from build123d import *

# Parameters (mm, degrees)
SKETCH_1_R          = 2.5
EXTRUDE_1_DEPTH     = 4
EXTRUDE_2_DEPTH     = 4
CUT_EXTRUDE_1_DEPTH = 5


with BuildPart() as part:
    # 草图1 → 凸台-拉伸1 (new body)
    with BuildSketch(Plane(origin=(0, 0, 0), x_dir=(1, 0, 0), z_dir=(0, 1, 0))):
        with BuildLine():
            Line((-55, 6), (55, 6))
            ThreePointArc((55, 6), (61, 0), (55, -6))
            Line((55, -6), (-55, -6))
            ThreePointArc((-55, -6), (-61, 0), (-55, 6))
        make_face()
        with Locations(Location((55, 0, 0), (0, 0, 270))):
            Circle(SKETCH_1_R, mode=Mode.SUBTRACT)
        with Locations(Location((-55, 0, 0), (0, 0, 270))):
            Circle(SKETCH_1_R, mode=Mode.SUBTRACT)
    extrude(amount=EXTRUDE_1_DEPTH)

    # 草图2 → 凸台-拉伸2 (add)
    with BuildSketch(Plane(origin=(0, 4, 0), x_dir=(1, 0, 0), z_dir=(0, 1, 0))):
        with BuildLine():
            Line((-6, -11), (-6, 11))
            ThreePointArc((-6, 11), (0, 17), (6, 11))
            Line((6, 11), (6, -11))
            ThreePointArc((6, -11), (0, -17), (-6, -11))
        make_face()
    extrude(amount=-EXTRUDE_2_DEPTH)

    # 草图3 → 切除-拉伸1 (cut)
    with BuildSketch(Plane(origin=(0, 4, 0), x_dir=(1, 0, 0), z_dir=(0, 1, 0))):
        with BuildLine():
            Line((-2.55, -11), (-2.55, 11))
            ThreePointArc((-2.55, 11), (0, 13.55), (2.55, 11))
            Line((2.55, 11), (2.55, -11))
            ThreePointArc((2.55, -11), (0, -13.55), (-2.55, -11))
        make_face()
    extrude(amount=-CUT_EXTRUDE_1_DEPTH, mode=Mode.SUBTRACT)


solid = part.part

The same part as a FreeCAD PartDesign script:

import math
import FreeCAD as App
import Part
import Sketcher

V = App.Vector

doc = App.newDocument("Part")
params = doc.addObject("Spreadsheet::Sheet", "Params")
for row, (alias, value) in enumerate([
    ("sketch1_diameter", "5 mm"),
    ("sketch1_radius", "6 mm"),
    ("sketch1_width", "110 mm"),
    ("pad1_length", "4 mm"),
    ("sketch2_radius", "6 mm"),
    ("sketch2_height", "22 mm"),
    ("pad2_length", "4 mm"),
    ("sketch3_height", "22 mm"),
    ("sketch3_radius", "2.55 mm"),
    ("pocket1_length", "5 mm"),
], start=1):
    params.set(f"A{row}", alias)
    params.set(f"B{row}", "=" + value)
    params.setAlias(f"B{row}", alias)

body = doc.addObject("PartDesign::Body", "Body")

sketch1 = body.newObject("Sketcher::SketchObject", "Sketch")
sketch1.AttachmentSupport = (doc.getObject("XZ_Plane"), [""])
sketch1.MapMode = "FlatFace"
sketch1.addGeometry(Part.LineSegment(V(55, -6, 0), V(-55, -6, 0)), False)
sketch1.addGeometry(Part.ArcOfCircle(Part.Circle(V(-55, 0, 0), V(0, 0, 1), 6), math.radians(90), math.radians(270)), False)
sketch1.addGeometry(Part.LineSegment(V(-55, 6, 0), V(55, 6, 0)), False)
sketch1.addGeometry(Part.ArcOfCircle(Part.Circle(V(55, 0, 0), V(0, 0, 1), 6), math.radians(-90), math.radians(90)), False)
sketch1.addGeometry(Part.Circle(V(55, 0, 0), V(0, 0, 1), 2.5), False)
sketch1.addGeometry(Part.Circle(V(-55, 0, 0), V(0, 0, 1), 2.5), False)
sketch1.addConstraint(Sketcher.Constraint("Tangent", 0, 2, 1, 2))
sketch1.addConstraint(Sketcher.Constraint("Tangent", 1, 1, 2, 1))
sketch1.addConstraint(Sketcher.Constraint("Tangent", 2, 2, 3, 2))
sketch1.addConstraint(Sketcher.Constraint("Tangent", 3, 1, 0, 1))
sketch1.addConstraint(Sketcher.Constraint("Horizontal", 0))
sketch1.addConstraint(Sketcher.Constraint("Horizontal", 2))
sketch1.addConstraint(Sketcher.Constraint("Coincident", 4, 3, 3, 3))
sketch1.addConstraint(Sketcher.Constraint("Coincident", 5, 3, 1, 3))
sketch1.addConstraint(Sketcher.Constraint("Equal", 4, 5))
sketch1.addConstraint(Sketcher.Constraint("Symmetric", 1, 3, 3, 3, -1, 1))
sketch1.addConstraint(Sketcher.Constraint("Diameter", 4, 5.0))
sketch1.addConstraint(Sketcher.Constraint("Radius", 1, 6.0))
sketch1.addConstraint(Sketcher.Constraint("DistanceX", 0, 2, 0, 1, 110.0))
sketch1.setExpression("Constraints[10]", "Params.sketch1_diameter")
sketch1.setExpression("Constraints[11]", "Params.sketch1_radius")
sketch1.setExpression("Constraints[12]", "Params.sketch1_width")
pad1 = body.newObject("PartDesign::Pad", "Pad")
pad1.Profile = sketch1
pad1.setExpression("Length", "Params.pad1_length")
pad1.Reversed = True

sketch2 = body.newObject("Sketcher::SketchObject", "Sketch001")
sketch2.AttachmentSupport = (doc.getObject("XZ_Plane"), [""])
sketch2.MapMode = "FlatFace"
sketch2.AttachmentOffset = App.Placement(V(0, 0, -4), App.Rotation())
sketch2.addGeometry(Part.LineSegment(V(-6, -11, 0), V(-6, 11, 0)), False)
sketch2.addGeometry(Part.ArcOfCircle(Part.Circle(V(0, 11, 0), V(0, 0, 1), 6), math.radians(0), math.radians(180)), False)
sketch2.addGeometry(Part.LineSegment(V(6, 11, 0), V(6, -11, 0)), False)
sketch2.addGeometry(Part.ArcOfCircle(Part.Circle(V(0, -11, 0), V(0, 0, 1), 6), math.radians(180), math.radians(360)), False)
sketch2.addConstraint(Sketcher.Constraint("Tangent", 0, 2, 1, 2))
sketch2.addConstraint(Sketcher.Constraint("Tangent", 1, 1, 2, 1))
sketch2.addConstraint(Sketcher.Constraint("Tangent", 2, 2, 3, 2))
sketch2.addConstraint(Sketcher.Constraint("Tangent", 3, 1, 0, 1))
sketch2.addConstraint(Sketcher.Constraint("Vertical", 0))
sketch2.addConstraint(Sketcher.Constraint("Vertical", 2))
sketch2.addConstraint(Sketcher.Constraint("Symmetric", 1, 3, 3, 3, -1, 1))
sketch2.addConstraint(Sketcher.Constraint("Radius", 1, 6.0))
sketch2.addConstraint(Sketcher.Constraint("DistanceY", 0, 1, 0, 2, 22.0))
sketch2.setExpression("Constraints[7]", "Params.sketch2_radius")
sketch2.setExpression("Constraints[8]", "Params.sketch2_height")
pad2 = body.newObject("PartDesign::Pad", "Pad001")
pad2.Profile = sketch2
pad2.setExpression("Length", "Params.pad2_length")

sketch3 = body.newObject("Sketcher::SketchObject", "Sketch002")
sketch3.AttachmentSupport = (doc.getObject("XZ_Plane"), [""])
sketch3.MapMode = "FlatFace"
sketch3.AttachmentOffset = App.Placement(V(0, 0, -4), App.Rotation())
sketch3.addGeometry(Part.LineSegment(V(-2.5, -11, 0), V(-2.5, 11, 0)), False)
sketch3.addGeometry(Part.ArcOfCircle(Part.Circle(V(0, 11, 0), V(0, 0, 1), 2.5), math.radians(0), math.radians(180)), False)
sketch3.addGeometry(Part.LineSegment(V(2.5, 11, 0), V(2.5, -11, 0)), False)
sketch3.addGeometry(Part.ArcOfCircle(Part.Circle(V(0, -11, 0), V(0, 0, 1), 2.5), math.radians(180), math.radians(360)), False)
sketch3.addConstraint(Sketcher.Constraint("Tangent", 0, 2, 1, 2))
sketch3.addConstraint(Sketcher.Constraint("Tangent", 1, 1, 2, 1))
sketch3.addConstraint(Sketcher.Constraint("Tangent", 2, 2, 3, 2))
sketch3.addConstraint(Sketcher.Constraint("Tangent", 3, 1, 0, 1))
sketch3.addConstraint(Sketcher.Constraint("Vertical", 0))
sketch3.addConstraint(Sketcher.Constraint("Vertical", 2))
sketch3.addConstraint(Sketcher.Constraint("Symmetric", 1, 3, 3, 3, -1, 1))
sketch3.addConstraint(Sketcher.Constraint("DistanceY", 0, 1, 0, 2, 22.0))
sketch3.addConstraint(Sketcher.Constraint("Radius", 1, 2.55))
sketch3.setExpression("Constraints[7]", "Params.sketch3_height")
sketch3.setExpression("Constraints[8]", "Params.sketch3_radius")
pocket1 = body.newObject("PartDesign::Pocket", "Pocket")
pocket1.Profile = sketch3
pocket1.setExpression("Length", "Params.pocket1_length")
pocket1.Reversed = True

doc.recompute()
